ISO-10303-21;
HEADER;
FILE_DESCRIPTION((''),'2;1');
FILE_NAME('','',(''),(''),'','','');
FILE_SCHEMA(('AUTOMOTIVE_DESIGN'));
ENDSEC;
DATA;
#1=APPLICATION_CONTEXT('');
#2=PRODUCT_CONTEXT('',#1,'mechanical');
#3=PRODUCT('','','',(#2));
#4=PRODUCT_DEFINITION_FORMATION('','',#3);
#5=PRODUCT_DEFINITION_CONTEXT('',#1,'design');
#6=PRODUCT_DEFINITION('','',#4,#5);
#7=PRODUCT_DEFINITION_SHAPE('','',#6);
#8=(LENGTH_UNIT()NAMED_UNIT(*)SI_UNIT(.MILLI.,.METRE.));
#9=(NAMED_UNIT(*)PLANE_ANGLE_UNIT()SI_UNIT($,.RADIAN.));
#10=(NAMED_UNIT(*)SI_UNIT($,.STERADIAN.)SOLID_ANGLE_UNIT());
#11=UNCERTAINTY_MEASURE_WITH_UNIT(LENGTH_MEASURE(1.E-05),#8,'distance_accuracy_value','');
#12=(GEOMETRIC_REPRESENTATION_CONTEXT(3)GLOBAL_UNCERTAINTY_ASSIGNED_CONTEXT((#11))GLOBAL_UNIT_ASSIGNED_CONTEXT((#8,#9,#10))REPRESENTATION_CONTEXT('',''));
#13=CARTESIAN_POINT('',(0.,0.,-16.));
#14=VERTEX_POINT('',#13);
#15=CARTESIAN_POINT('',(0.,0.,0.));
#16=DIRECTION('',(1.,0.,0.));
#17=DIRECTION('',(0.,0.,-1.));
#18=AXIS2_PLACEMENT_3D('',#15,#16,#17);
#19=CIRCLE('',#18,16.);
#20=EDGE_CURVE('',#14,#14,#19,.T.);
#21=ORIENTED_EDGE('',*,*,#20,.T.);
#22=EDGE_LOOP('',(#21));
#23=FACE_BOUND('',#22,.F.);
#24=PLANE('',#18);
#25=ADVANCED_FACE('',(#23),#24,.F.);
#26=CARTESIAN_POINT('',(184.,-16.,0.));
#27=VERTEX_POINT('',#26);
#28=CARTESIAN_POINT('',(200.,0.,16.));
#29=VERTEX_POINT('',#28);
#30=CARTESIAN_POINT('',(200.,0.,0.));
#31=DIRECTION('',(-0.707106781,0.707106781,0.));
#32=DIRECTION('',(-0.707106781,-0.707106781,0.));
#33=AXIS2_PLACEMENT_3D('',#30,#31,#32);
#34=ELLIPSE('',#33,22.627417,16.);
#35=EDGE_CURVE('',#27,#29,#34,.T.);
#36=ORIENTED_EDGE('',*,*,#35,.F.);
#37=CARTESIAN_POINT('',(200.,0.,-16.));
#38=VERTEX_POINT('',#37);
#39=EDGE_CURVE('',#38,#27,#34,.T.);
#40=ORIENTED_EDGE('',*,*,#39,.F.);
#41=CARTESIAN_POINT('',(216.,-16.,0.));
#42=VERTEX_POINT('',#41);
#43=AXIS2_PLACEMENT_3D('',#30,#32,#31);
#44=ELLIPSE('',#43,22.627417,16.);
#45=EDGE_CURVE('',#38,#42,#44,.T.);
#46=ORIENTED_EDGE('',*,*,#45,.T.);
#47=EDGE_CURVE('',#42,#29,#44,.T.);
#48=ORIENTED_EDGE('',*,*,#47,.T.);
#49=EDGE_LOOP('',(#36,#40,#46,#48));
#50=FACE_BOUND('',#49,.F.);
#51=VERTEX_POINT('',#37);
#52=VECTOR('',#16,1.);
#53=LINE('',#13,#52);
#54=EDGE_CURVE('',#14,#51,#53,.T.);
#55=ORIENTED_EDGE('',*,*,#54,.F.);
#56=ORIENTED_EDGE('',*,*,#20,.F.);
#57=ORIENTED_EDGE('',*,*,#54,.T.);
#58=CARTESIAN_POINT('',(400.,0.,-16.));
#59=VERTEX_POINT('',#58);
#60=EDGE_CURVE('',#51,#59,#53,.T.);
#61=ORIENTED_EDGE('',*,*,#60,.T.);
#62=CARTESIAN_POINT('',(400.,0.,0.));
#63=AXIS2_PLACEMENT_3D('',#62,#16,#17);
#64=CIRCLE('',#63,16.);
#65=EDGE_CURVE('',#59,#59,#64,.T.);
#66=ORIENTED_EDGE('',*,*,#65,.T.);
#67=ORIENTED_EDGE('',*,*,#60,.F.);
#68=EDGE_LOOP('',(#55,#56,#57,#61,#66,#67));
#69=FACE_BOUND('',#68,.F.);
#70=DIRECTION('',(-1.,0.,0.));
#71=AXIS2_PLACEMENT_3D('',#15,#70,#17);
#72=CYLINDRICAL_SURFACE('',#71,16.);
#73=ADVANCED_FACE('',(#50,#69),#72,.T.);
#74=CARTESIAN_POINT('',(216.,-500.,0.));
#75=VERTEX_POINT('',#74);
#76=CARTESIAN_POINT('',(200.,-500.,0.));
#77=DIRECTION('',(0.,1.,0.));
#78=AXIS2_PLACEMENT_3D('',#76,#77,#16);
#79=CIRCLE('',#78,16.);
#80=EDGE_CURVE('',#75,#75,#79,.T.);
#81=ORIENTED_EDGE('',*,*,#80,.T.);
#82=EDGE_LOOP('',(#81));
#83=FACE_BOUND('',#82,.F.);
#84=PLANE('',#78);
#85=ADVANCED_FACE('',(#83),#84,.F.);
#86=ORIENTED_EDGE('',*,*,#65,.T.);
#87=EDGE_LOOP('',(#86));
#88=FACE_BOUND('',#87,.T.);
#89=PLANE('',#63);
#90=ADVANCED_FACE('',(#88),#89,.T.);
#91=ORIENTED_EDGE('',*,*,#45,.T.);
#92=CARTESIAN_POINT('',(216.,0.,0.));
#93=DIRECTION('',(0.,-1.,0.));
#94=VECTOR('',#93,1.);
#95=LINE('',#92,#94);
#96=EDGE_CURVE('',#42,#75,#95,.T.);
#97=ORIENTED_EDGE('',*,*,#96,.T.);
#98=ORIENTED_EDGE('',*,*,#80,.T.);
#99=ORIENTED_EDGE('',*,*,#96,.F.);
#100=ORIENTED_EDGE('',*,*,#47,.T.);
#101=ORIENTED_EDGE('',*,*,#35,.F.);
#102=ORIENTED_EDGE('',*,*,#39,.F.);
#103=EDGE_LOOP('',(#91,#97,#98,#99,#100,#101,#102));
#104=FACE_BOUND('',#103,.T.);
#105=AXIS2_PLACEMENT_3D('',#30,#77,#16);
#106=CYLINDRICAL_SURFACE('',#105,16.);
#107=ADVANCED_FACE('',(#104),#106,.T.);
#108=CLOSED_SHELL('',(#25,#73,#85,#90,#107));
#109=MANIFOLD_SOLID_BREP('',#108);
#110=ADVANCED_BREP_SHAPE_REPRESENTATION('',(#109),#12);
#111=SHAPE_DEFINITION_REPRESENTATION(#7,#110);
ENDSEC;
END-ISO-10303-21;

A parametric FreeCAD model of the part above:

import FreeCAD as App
import Part
import Sketcher
from FreeCAD import Vector
Q = App.Units.Quantity

doc = App.newDocument("Part")
body = doc.addObject("PartDesign::Body", "Body")

# Sketch on YZ plane
sketch1 = body.newObject("Sketcher::SketchObject", "Sketch")
sketch1.AttachmentSupport = (doc.getObject("YZ_Plane"), [""])
sketch1.MapMode = "FlatFace"
sketch1.addGeometry(Part.Circle(Vector(0, 0, 0), Vector(0, 0, 1), 16), False)
sketch1.addConstraint(Sketcher.Constraint("Coincident", 0, 3, -1, 1))
sketch1.addConstraint(Sketcher.Constraint("Diameter", 0, Q("32 mm")))
pad1 = body.newObject("PartDesign::Pad", "Pad")
pad1.Profile = sketch1
pad1.Length = 400

# Sketch on XZ plane
sketch2 = body.newObject("Sketcher::SketchObject", "Sketch001")
sketch2.AttachmentSupport = (doc.getObject("XZ_Plane"), [""])
sketch2.MapMode = "FlatFace"
sketch2.addGeometry(Part.Circle(Vector(200, 0, 0), Vector(0, 0, 1), 16), False)
sketch2.addConstraint(Sketcher.Constraint("PointOnObject", 0, 3, -1))
sketch2.addConstraint(Sketcher.Constraint("Diameter", 0, Q("32 mm")))
sketch2.addConstraint(Sketcher.Constraint("DistanceX", -1, 1, 0, 3, Q("200 mm")))
pad2 = body.newObject("PartDesign::Pad", "Pad001")
pad2.Profile = sketch2
pad2.Length = 500

doc.recompute()
